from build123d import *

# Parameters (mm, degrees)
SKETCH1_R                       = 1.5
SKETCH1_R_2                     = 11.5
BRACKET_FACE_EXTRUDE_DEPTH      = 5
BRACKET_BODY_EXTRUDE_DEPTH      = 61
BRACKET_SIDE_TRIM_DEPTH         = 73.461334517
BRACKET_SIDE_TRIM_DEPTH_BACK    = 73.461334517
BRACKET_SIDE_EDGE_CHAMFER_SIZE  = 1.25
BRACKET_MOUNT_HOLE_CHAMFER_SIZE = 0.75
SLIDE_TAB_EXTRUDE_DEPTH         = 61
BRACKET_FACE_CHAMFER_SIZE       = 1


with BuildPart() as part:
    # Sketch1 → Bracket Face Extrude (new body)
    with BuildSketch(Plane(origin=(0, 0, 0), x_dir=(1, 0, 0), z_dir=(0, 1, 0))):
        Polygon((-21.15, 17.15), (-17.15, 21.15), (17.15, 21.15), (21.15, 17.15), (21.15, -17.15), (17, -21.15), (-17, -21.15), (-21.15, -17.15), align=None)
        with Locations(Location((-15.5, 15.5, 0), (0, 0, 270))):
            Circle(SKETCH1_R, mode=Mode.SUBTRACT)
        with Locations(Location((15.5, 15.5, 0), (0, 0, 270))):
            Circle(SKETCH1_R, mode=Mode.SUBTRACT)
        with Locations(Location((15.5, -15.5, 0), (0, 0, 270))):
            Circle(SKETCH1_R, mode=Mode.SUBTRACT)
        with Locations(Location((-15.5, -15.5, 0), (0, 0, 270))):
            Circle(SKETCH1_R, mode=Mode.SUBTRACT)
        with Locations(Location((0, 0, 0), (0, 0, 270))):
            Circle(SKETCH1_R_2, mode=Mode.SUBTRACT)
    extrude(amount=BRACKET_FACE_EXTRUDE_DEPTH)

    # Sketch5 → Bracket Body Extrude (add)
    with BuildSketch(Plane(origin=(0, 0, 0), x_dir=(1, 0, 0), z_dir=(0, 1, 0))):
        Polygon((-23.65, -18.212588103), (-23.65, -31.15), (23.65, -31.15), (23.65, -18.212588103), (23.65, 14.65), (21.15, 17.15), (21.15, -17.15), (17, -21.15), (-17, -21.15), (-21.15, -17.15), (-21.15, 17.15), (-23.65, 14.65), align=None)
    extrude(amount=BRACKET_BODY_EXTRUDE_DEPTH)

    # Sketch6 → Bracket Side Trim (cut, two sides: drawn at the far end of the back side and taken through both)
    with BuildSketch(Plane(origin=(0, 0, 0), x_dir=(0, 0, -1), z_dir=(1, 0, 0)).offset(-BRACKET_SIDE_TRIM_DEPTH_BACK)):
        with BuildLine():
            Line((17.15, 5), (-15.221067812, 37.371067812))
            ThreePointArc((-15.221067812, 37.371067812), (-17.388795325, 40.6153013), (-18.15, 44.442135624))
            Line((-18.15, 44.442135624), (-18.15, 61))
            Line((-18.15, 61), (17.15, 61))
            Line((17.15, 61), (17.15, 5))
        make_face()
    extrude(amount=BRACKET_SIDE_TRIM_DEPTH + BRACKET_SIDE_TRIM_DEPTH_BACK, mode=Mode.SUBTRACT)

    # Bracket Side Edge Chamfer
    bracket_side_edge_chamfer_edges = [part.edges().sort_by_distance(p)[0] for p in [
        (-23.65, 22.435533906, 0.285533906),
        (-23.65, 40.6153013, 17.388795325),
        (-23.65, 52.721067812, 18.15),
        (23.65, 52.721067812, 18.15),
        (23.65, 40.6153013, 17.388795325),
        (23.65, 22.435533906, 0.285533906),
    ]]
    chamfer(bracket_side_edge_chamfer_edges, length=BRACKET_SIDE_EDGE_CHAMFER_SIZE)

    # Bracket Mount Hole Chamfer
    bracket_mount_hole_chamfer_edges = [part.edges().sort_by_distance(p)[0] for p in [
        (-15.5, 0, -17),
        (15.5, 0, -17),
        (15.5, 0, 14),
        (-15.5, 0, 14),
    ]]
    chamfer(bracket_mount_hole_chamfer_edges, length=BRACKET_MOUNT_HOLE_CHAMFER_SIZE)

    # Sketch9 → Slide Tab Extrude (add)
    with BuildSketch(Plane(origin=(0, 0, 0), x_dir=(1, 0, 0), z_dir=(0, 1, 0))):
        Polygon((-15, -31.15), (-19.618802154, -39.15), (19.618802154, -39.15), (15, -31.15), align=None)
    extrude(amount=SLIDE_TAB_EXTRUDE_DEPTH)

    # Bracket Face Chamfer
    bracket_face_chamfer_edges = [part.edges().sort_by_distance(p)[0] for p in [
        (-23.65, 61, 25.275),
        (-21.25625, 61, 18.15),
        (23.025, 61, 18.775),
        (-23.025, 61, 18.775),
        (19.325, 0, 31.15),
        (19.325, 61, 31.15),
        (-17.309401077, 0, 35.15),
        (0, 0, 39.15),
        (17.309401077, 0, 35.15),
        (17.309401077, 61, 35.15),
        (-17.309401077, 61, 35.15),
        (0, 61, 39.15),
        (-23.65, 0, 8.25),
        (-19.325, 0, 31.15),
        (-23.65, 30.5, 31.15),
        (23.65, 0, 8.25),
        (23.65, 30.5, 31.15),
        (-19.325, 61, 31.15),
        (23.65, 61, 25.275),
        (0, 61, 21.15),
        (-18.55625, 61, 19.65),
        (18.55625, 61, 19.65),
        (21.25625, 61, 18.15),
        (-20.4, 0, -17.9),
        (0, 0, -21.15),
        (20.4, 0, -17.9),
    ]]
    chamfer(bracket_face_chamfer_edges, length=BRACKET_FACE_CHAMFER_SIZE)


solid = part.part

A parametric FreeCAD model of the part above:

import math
import FreeCAD as App
import Part
import Sketcher
from FreeCAD import Vector
Q = App.Units.Quantity


def edges_at(feature, points):
    """Names of the edges that pass closest to the given points."""
    edges = feature.Shape.Edges
    near = lambda p: min(range(len(edges)), key=lambda i: edges[i].distToShape(Part.Vertex(*p))[0])
    return sorted({f"Edge{near(p) + 1}" for p in points})


def add_polygon(sketch, points):
    """Adds a closed chain of lines whose ends are joined by coincident constraints."""
    first, n = sketch.GeometryCount, len(points)
    for a, b in zip(points, points[1:] + points[:1]):
        sketch.addGeometry(Part.LineSegment(App.Vector(*a, 0), App.Vector(*b, 0)), False)
    for i in range(n):
        sketch.addConstraint(Sketcher.Constraint("Coincident", first + i, 2, first + (i + 1) % n, 1))

doc = App.newDocument("Part")
body = doc.addObject("PartDesign::Body", "Body")

# Sketch on XZ plane
sketch1 = body.newObject("Sketcher::SketchObject", "Sketch")
sketch1.AttachmentSupport = (doc.getObject("XZ_Plane"), [""])
sketch1.MapMode = "FlatFace"
add_polygon(sketch1, [(-17.1, -21.1), (-21.1, -17.1), (-21.1, 17.1), (-17, 21.1), (17, 21.1), (21.1, 17.1), (21.1, -17.1), (17.1, -21.1)])  # lines 0-7
sketch1.addGeometry(Part.Circle(Vector(15.5, 15.5, 0), Vector(0, 0, 1), 1.5), False)  # 8
sketch1.addGeometry(Part.Circle(Vector(-15.5, 15.5, 0), Vector(0, 0, 1), 1.5), False)  # 9
sketch1.addGeometry(Part.Circle(Vector(15.5, -15.5, 0), Vector(0, 0, 1), 1.5), False)  # 10
sketch1.addGeometry(Part.Circle(Vector(0, 0, 0), Vector(0, 0, 1), 11.5), False)  # 11
sketch1.addGeometry(Part.Circle(Vector(-15.5, -15.5, 0), Vector(0, 0, 1), 1.5), False)  # 12
sketch1.addConstraint(Sketcher.Constraint("Vertical", 1))
sketch1.addConstraint(Sketcher.Constraint("Horizontal", 3))
sketch1.addConstraint(Sketcher.Constraint("Vertical", 5))
sketch1.addConstraint(Sketcher.Constraint("Horizontal", 7))
sketch1.addConstraint(Sketcher.Constraint("Coincident", 11, 3, -1, 1))
sketch1.addConstraint(Sketcher.Constraint("Equal", 8, 9))
sketch1.addConstraint(Sketcher.Constraint("Equal", 9, 10))
sketch1.addConstraint(Sketcher.Constraint("Equal", 10, 12))
sketch1.addConstraint(Sketcher.Constraint("Symmetric", 9, 3, 10, 3, -1, 1))
sketch1.addConstraint(Sketcher.Constraint("Symmetric", 8, 3, 12, 3, -1, 1))
sketch1.addConstraint(Sketcher.Constraint("Symmetric", 0, 2, 4, 2, -1, 1))
sketch1.addConstraint(Sketcher.Constraint("Symmetric", 8, 3, 9, 3, -2))
sketch1.addConstraint(Sketcher.Constraint("Perpendicular", 0, 6))
sketch1.addConstraint(Sketcher.Constraint("Horizontal", 1, 2, 4, 2))
sketch1.addConstraint(Sketcher.Constraint("Horizontal", 0, 2, 5, 2))
sketch1.addConstraint(Sketcher.Constraint("Equal", 7, 1))
sketch1.addConstraint(Sketcher.Constraint("Equal", 2, 4))
sketch1.addConstraint(Sketcher.Constraint("Equal", 0, 6))
sketch1.addConstraint(Sketcher.Constraint("Diameter", 8, Q("3 mm")))
sketch1.addConstraint(Sketcher.Constraint("Diameter", 11, Q("23 mm")))
sketch1.addConstraint(Sketcher.Constraint("DistanceX", 3, 1, 3, 2, Q("34 mm")))
sketch1.addConstraint(Sketcher.Constraint("DistanceX", 7, 2, 7, 1, Q("34.3 mm")))
sketch1.addConstraint(Sketcher.Constraint("DistanceX", 9, 3, 8, 3, Q("31 mm")))
sketch1.addConstraint(Sketcher.Constraint("DistanceY", 10, 3, 8, 3, Q("31 mm")))
sketch1.addConstraint(Sketcher.Constraint("DistanceY", 1, 2, 2, 2, Q("4 mm")))
sketch1.addConstraint(Sketcher.Constraint("DistanceX", 6, 2, 5, 2, Q("4 mm")))
pad1 = body.newObject("PartDesign::Pad", "Pad")
pad1.Profile = sketch1
pad1.Length = 5
pad1.Reversed = True

# Sketch on XZ plane
sketch2 = body.newObject("Sketcher::SketchObject", "Sketch001")
sketch2.AttachmentSupport = (doc.getObject("XZ_Plane"), [""])
sketch2.MapMode = "FlatFace"
add_polygon(sketch2, [(-23.6, 31.1), (23.6, 31.1), (23.6, -14.7), (21.1, -17.1), (21.1, 17.1), (17, 21.1), (-17, 21.1), (-21.1, 17.1), (-21.1, -17.1), (-23.6, -14.7)])  # lines 0-9
sketch2.addConstraint(Sketcher.Constraint("Horizontal", 0))
sketch2.addConstraint(Sketcher.Constraint("Vertical", 1))
sketch2.addConstraint(Sketcher.Constraint("Vertical", 3))
sketch2.addConstraint(Sketcher.Constraint("Horizontal", 5))
sketch2.addConstraint(Sketcher.Constraint("Vertical", 7))
sketch2.addConstraint(Sketcher.Constraint("Vertical", 9))
sketch2.addConstraint(Sketcher.Constraint("Symmetric", 2, 2, 6, 2, -1, 1))
sketch2.addConstraint(Sketcher.Constraint("Symmetric", 1, 2, 8, 2, -2))
sketch2.addConstraint(Sketcher.Constraint("Perpendicular", 2, 8))
sketch2.addConstraint(Sketcher.Constraint("Horizontal", 3, 2, 6, 2))
sketch2.addConstraint(Sketcher.Constraint("Horizontal", 2, 2, 7, 2))
sketch2.addConstraint(Sketcher.Constraint("Equal", 4, 6))
sketch2.addConstraint(Sketcher.Constraint("DistanceX", 5, 2, 5, 1, Q("34 mm")))
sketch2.addConstraint(Sketcher.Constraint("DistanceX", 0, 1, 0, 2, Q("47.3 mm")))
sketch2.addConstraint(Sketcher.Constraint("DistanceY", 1, 2, 1, 1, Q("45.8 mm")))
sketch2.addConstraint(Sketcher.Constraint("DistanceY", 3, 1, 3, 2, Q("34.3 mm")))
sketch2.addConstraint(Sketcher.Constraint("DistanceY", 3, 2, 0, 2, Q("14 mm")))
sketch2.addConstraint(Sketcher.Constraint("DistanceY", 3, 2, 4, 2, Q("4 mm")))
pad2 = body.newObject("PartDesign::Pad", "Pad001")
pad2.Profile = sketch2
pad2.Length = 61
pad2.Reversed = True

# Sketch on YZ plane
sketch3 = body.newObject("Sketcher::SketchObject", "Sketch002")
sketch3.AttachmentSupport = (doc.getObject("YZ_Plane"), [""])
sketch3.MapMode = "FlatFace"
sketch3.addGeometry(Part.LineSegment(Vector(37, 15, 0), Vector(5, -17, 0)), False)
sketch3.addGeometry(Part.LineSegment(Vector(5, -17, 0), Vector(61, -17, 0)), False)
sketch3.addGeometry(Part.LineSegment(Vector(61, -17, 0), Vector(61, 18, 0)), False)
sketch3.addGeometry(Part.LineSegment(Vector(61, 18, 0), Vector(44, 18, 0)), False)
sketch3.addGeometry(Part.ArcOfCircle(Part.Circle(Vector(44, 8, 0), Vector(0, 0, 1), 10), math.radians(90), math.radians(135)), False)
sketch3.addConstraint(Sketcher.Constraint("Coincident", 0, 2, 1, 1))
sketch3.addConstraint(Sketcher.Constraint("Coincident", 1, 2, 2, 1))
sketch3.addConstraint(Sketcher.Constraint("Coincident", 2, 2, 3, 1))
sketch3.addConstraint(Sketcher.Constraint("Tangent", 3, 2, 4, 1))
sketch3.addConstraint(Sketcher.Constraint("Tangent", 4, 2, 0, 1))
sketch3.addConstraint(Sketcher.Constraint("Horizontal", 1))
sketch3.addConstraint(Sketcher.Constraint("Vertical", 2))
sketch3.addConstraint(Sketcher.Constraint("Horizontal", 3))
sketch3.addConstraint(Sketcher.Constraint("Radius", 4, Q("10 mm")))
sketch3.addConstraint(Sketcher.Constraint("DistanceX", 1, 1, 1, 2, Q("56 mm")))
sketch3.addConstraint(Sketcher.Constraint("Angle", 0, Q("-135 deg")))
sketch3.addConstraint(Sketcher.Constraint("DistanceY", 2, 1, 2, 2, Q("35.3 mm")))
sketch3.addConstraint(Sketcher.Constraint("DistanceX", -1, 1, 0, 2, Q("5 mm")))
sketch3.addConstraint(Sketcher.Constraint("DistanceY", -1, 1, 4, 3, Q("8.15 mm")))
pocket1 = body.newObject("PartDesign::Pocket", "Pocket")
pocket1.Profile = sketch3
pocket1.Type = "ThroughAll"
pocket1.Midplane = True
doc.recompute()

chamfer = body.newObject("PartDesign::Chamfer", "Chamfer")
chamfer.Base = (pocket1, edges_at(pocket1, [
    (-23.65, 22.436, 0.286),
    (-23.65, 40.615, 17.389),
    (-23.65, 52.721, 18.15),
    (23.65, 52.721, 18.15),
    (23.65, 40.615, 17.389),
    (23.65, 22.436, 0.286),
]))
chamfer.Size = 1.25
doc.recompute()

chamfer2 = body.newObject("PartDesign::Chamfer", "Chamfer001")
chamfer2.Base = (chamfer, edges_at(chamfer, [
    (-15.5, 0, -17),
    (15.5, 0, -17),
    (15.5, 0, 14),
    (-15.5, 0, 14),
]))
chamfer2.Size = 0.75

# Sketch on XZ plane
sketch4 = body.newObject("Sketcher::SketchObject", "Sketch003")
sketch4.AttachmentSupport = (doc.getObject("XZ_Plane"), [""])
sketch4.MapMode = "FlatFace"
add_polygon(sketch4, [(-15, 31), (-20, 39), (20, 39), (15, 31)])  # lines 0-3
sketch4.addConstraint(Sketcher.Constraint("Horizontal", 1))
sketch4.addConstraint(Sketcher.Constraint("Horizontal", 3))
sketch4.addConstraint(Sketcher.Constraint("Equal", 0, 2))
sketch4.addConstraint(Sketcher.Constraint("DistanceX", 3, 2, 3, 1, Q("30 mm")))
sketch4.addConstraint(Sketcher.Constraint("Angle", 0, Q("120 deg")))
sketch4.addConstraint(Sketcher.Constraint("DistanceX", -1, 1, 2, 2, Q("15 mm")))
sketch4.addConstraint(Sketcher.Constraint("DistanceY", 2, 2, 1, 2, Q("8 mm")))
sketch4.addConstraint(Sketcher.Constraint("DistanceY", -1, 1, 0, 2, Q("39.15 mm")))
pad3 = body.newObject("PartDesign::Pad", "Pad002")
pad3.Profile = sketch4
pad3.Length = 61
pad3.Reversed = True
doc.recompute()

chamfer3 = body.newObject("PartDesign::Chamfer", "Chamfer002")
chamfer3.Base = (pad3, edges_at(pad3, [
    (-23.65, 61, 25.275),
    (-21.256, 61, 18.15),
    (23.025, 61, 18.775),
    (-23.025, 61, 18.775),
    (19.325, 0, 31.15),
    (19.325, 61, 31.15),
    (-17.309, 0, 35.15),
    (0, 0, 39.15),
    (17.309, 0, 35.15),
    (17.309, 61, 35.15),
    (-17.309, 61, 35.15),
    (0, 61, 39.15),
    (-23.65, 0, 8.25),
    (-19.325, 0, 31.15),
    (-23.65, 30.5, 31.15),
    (23.65, 0, 8.25),
    (23.65, 30.5, 31.15),
    (-19.325, 61, 31.15),
    (23.65, 61, 25.275),
    (0, 61, 21.15),
    (-18.556, 61, 19.65),
    (18.556, 61, 19.65),
    (21.256, 61, 18.15),
    (-20.4, 0, -17.9),
    (0, 0, -21.15),
    (20.4, 0, -17.9),
]))
chamfer3.Size = 1

doc.recompute()
